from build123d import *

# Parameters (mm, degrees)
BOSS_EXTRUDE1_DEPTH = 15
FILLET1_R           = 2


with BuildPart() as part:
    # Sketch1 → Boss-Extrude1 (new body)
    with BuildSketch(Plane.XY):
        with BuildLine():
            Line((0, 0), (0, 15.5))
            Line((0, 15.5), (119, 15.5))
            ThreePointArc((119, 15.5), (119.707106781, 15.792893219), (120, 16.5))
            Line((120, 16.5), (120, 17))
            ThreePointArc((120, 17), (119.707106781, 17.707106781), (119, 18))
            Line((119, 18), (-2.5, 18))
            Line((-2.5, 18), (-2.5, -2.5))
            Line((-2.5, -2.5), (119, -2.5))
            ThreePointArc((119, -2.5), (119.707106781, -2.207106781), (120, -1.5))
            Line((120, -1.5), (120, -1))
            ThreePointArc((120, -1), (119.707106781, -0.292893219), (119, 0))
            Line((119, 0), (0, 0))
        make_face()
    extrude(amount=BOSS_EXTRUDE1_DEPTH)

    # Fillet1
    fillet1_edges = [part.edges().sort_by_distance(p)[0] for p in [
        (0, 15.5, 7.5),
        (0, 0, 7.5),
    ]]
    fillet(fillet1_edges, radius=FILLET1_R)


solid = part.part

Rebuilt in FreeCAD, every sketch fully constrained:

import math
import FreeCAD as App
import Part
import Sketcher

V = App.Vector


def edges_at(feature, points):
    """Names of the edges that pass closest to the given points."""
    edges = feature.Shape.Edges
    near = lambda p: min(range(len(edges)), key=lambda i: edges[i].distToShape(Part.Vertex(*p))[0])
    return sorted({f"Edge{near(p) + 1}" for p in points})

doc = App.newDocument("Part")
body = doc.addObject("PartDesign::Body", "Body")

sketch1 = body.newObject("Sketcher::SketchObject", "Sketch")
sketch1.AttachmentSupport = (doc.getObject("XY_Plane"), [""])
sketch1.MapMode = "FlatFace"
sketch1.addGeometry([
    Part.LineSegment(V(0, 0, 0), V(0, 15.5, 0)),
    Part.LineSegment(V(0, 15.5, 0), V(119, 15.5, 0)),
    Part.ArcOfCircle(Part.Circle(V(119, 16.5, 0), V(0, 0, 1), 1), math.radians(-90), math.radians(0)),
    Part.LineSegment(V(120, 16.5, 0), V(120, 17, 0)),
    Part.ArcOfCircle(Part.Circle(V(119, 17, 0), V(0, 0, 1), 1), math.radians(0), math.radians(90)),
    Part.LineSegment(V(119, 18, 0), V(-2.5, 18, 0)),
    Part.LineSegment(V(-2.5, 18, 0), V(-2.5, -2.5, 0)),
    Part.LineSegment(V(-2.5, -2.5, 0), V(119, -2.5, 0)),
    Part.ArcOfCircle(Part.Circle(V(119, -1.5, 0), V(0, 0, 1), 1), math.radians(-90), math.radians(0)),
    Part.LineSegment(V(120, -1.5, 0), V(120, -1, 0)),
    Part.ArcOfCircle(Part.Circle(V(119, -1, 0), V(0, 0, 1), 1), math.radians(0), math.radians(90)),
    Part.LineSegment(V(119, 0, 0), V(0, 0, 0)),
], False)
sketch1.addConstraint([
    Sketcher.Constraint("Coincident", 0, 2, 1, 1),
    Sketcher.Constraint("Tangent", 1, 2, 2, 1),
    Sketcher.Constraint("Tangent", 2, 2, 3, 1),
    Sketcher.Constraint("Tangent", 3, 2, 4, 1),
    Sketcher.Constraint("Tangent", 4, 2, 5, 1),
    Sketcher.Constraint("Coincident", 5, 2, 6, 1),
    Sketcher.Constraint("Coincident", 6, 2, 7, 1),
    Sketcher.Constraint("Tangent", 7, 2, 8, 1),
    Sketcher.Constraint("Tangent", 8, 2, 9, 1),
    Sketcher.Constraint("Tangent", 9, 2, 10, 1),
    Sketcher.Constraint("Tangent", 10, 2, 11, 1),
    Sketcher.Constraint("Coincident", 11, 2, 0, 1),
    Sketcher.Constraint("Vertical", 0),
    Sketcher.Constraint("Horizontal", 1),
    Sketcher.Constraint("Vertical", 3),
    Sketcher.Constraint("Horizontal", 5),
    Sketcher.Constraint("Vertical", 6),
    Sketcher.Constraint("Horizontal", 7),
    Sketcher.Constraint("Vertical", 9),
    Sketcher.Constraint("Horizontal", 11),
    Sketcher.Constraint("Coincident", 11, 2, -1, 1),
    Sketcher.Constraint("Equal", 2, 4),
    Sketcher.Constraint("Equal", 4, 8),
    Sketcher.Constraint("Equal", 8, 10),
    Sketcher.Constraint("Vertical", 4, 3, 8, 3),
    Sketcher.Constraint("Equal", 3, 9),
    Sketcher.Constraint("Radius", 2, 1.0),
    Sketcher.Constraint("DistanceX", 1, 1, 1, 2, 119.0),
    Sketcher.Constraint("DistanceX", 5, 2, 5, 1, 121.5),
    Sketcher.Constraint("DistanceY", 0, 1, 0, 2, 15.5),
    Sketcher.Constraint("DistanceY", 3, 1, 3, 2, 0.5),
])
pad1 = body.newObject("PartDesign::Pad", "Pad")
pad1.Profile = sketch1
pad1.Length = 15
doc.recompute()

fillet = body.newObject("PartDesign::Fillet", "Fillet")
fillet.Base = (pad1, edges_at(pad1, [(0, 15.5, 7.5), (0, 0, 7.5)]))
fillet.Radius = 2

doc.recompute()
